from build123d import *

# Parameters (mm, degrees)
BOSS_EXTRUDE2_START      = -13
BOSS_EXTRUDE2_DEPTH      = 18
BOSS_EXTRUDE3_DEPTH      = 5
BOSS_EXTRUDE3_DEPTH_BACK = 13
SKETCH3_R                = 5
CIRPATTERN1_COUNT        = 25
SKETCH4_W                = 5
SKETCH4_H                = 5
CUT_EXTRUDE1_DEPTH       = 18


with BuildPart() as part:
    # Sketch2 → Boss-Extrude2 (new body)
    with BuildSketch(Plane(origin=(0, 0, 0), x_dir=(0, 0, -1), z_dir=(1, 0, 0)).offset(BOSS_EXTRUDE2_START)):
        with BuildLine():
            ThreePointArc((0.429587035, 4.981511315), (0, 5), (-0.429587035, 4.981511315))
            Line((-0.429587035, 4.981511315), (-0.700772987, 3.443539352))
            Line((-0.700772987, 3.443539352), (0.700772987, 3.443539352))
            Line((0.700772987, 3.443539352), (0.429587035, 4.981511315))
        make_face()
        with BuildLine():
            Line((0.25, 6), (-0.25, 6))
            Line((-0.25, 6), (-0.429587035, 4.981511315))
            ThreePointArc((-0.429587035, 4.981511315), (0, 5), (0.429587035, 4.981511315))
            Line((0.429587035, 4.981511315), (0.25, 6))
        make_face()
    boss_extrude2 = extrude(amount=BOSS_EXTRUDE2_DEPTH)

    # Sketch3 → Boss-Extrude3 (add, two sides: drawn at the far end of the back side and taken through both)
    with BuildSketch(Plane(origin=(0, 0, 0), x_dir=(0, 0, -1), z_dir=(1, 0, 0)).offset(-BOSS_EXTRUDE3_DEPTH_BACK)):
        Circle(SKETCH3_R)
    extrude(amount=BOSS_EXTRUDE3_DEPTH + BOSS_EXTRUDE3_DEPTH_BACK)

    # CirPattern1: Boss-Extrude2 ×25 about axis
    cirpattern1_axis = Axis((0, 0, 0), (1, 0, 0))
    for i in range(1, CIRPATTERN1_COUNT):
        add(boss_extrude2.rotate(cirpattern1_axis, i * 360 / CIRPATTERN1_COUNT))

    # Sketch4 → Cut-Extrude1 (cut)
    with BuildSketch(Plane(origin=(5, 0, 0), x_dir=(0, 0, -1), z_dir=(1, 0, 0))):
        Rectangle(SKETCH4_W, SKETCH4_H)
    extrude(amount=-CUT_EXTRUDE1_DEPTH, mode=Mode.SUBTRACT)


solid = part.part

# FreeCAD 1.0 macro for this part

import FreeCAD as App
import Part
import Sketcher
Q = App.Units.Quantity

doc = App.newDocument("Part")
body = doc.addObject("PartDesign::Body", "Body")

# Sketch on YZ plane
sketch1 = doc.addObject("Sketcher::SketchObject", "Sketch")
body.addObject(sketch1)
sketch1.AttachmentSupport = (doc.YZ_Plane, [""])
sketch1.MapMode = "FlatFace"
sketch1.AttachmentOffset = App.Placement(App.Vector(0, 0, -13), App.Rotation())
sketch1.addGeometry([
    Part.LineSegment(App.Vector(5, 0.4, 0), App.Vector(3.4, 0.7, 0)),  # 0
    Part.LineSegment(App.Vector(3.4, 0.7, 0), App.Vector(3.4, -0.7, 0)),  # 1
    Part.LineSegment(App.Vector(3.4, -0.7, 0), App.Vector(5, -0.4, 0)),  # 2
    Part.LineSegment(App.Vector(5, -0.4, 0), App.Vector(6, -0.2, 0)),  # 3
    Part.LineSegment(App.Vector(6, -0.2, 0), App.Vector(6, 0.2, 0)),  # 4
    Part.LineSegment(App.Vector(6, 0.2, 0), App.Vector(5, 0.4, 0)),  # 5
], False)
sketch1.addConstraint([
    Sketcher.Constraint("Coincident", 0, 2, 1, 1),
    Sketcher.Constraint("Coincident", 1, 2, 2, 1),
    Sketcher.Constraint("Coincident", 2, 2, 3, 1),
    Sketcher.Constraint("Coincident", 3, 2, 4, 1),
    Sketcher.Constraint("Coincident", 4, 2, 5, 1),
    Sketcher.Constraint("Coincident", 5, 2, 0, 1),
    Sketcher.Constraint("Vertical", 1),
    Sketcher.Constraint("Vertical", 4),
    Sketcher.Constraint("Symmetric", 2, 2, 5, 2, -1),
    Sketcher.Constraint("Parallel", 2, 3),
    Sketcher.Constraint("Parallel", 0, 5),
    Sketcher.Constraint("Equal", 0, 2),
    Sketcher.Constraint("Angle", 0, Q("170 deg")),
    Sketcher.Constraint("DistanceY", 4, 1, 4, 2, 0.5),
    Sketcher.Constraint("DistanceX", -1, 1, 3, 2, 6.0),
    Sketcher.Constraint("Distance", 3, 1.034201),
    Sketcher.Constraint("DistanceY", 1, 2, 1, 1, 1.401546),
])
pad1 = doc.addObject("PartDesign::Pad", "Pad")
body.addObject(pad1)
pad1.Profile = sketch1
pad1.Length = 18

# Sketch on YZ plane
sketch2 = doc.addObject("Sketcher::SketchObject", "Sketch001")
body.addObject(sketch2)
sketch2.AttachmentSupport = (doc.YZ_Plane, [""])
sketch2.MapMode = "FlatFace"
sketch2.addGeometry(Part.Circle(App.Vector(0, 0, 0), App.Vector(0, 0, 1), 5), False)
sketch2.addConstraint([
    Sketcher.Constraint("Coincident", 0, 3, -1, 1),
    Sketcher.Constraint("Diameter", 0, 10.0),
])
pad2 = doc.addObject("PartDesign::Pad", "Pad001")
body.addObject(pad2)
pad2.Profile = sketch2
pad2.Type = "TwoLengths"
pad2.Length = 5
pad2.Length2 = 13
doc.recompute()

polarpattern = doc.addObject("PartDesign::PolarPattern", "PolarPattern")
body.addObject(polarpattern)
polarpattern.Originals = [pad1]
polarpattern.Axis = (doc.X_Axis, [""])
polarpattern.Angle = 360
polarpattern.Occurrences = 25
body.Tip = polarpattern

# Sketch on YZ plane
sketch3 = doc.addObject("Sketcher::SketchObject", "Sketch002")
body.addObject(sketch3)
sketch3.AttachmentSupport = (doc.YZ_Plane, [""])
sketch3.MapMode = "FlatFace"
sketch3.AttachmentOffset = App.Placement(App.Vector(0, 0, 5), App.Rotation())
sketch3.addGeometry([
    Part.LineSegment(App.Vector(2, 2, 0), App.Vector(-2, 2, 0)),
    Part.LineSegment(App.Vector(-2, 2, 0), App.Vector(-2, -2, 0)),
    Part.LineSegment(App.Vector(-2, -2, 0), App.Vector(2, -2, 0)),
    Part.LineSegment(App.Vector(2, -2, 0), App.Vector(2, 2, 0)),
], False)
sketch3.addConstraint([
    Sketcher.Constraint("Coincident", 0, 2, 1, 1),
    Sketcher.Constraint("Coincident", 1, 2, 2, 1),
    Sketcher.Constraint("Coincident", 2, 2, 3, 1),
    Sketcher.Constraint("Coincident", 3, 2, 0, 1),
    Sketcher.Constraint("Horizontal", 0),
    Sketcher.Constraint("Vertical", 1),
    Sketcher.Constraint("Horizontal", 2),
    Sketcher.Constraint("Vertical", 3),
    Sketcher.Constraint("Symmetric", 0, 2, 2, 2, -1, 1),
    Sketcher.Constraint("Equal", 2, 1),
    Sketcher.Constraint("DistanceX", 0, 2, 0, 1, 5.0),
])
pocket1 = doc.addObject("PartDesign::Pocket", "Pocket")
body.addObject(pocket1)
pocket1.Profile = sketch3
pocket1.Length = 18

doc.recompute()
